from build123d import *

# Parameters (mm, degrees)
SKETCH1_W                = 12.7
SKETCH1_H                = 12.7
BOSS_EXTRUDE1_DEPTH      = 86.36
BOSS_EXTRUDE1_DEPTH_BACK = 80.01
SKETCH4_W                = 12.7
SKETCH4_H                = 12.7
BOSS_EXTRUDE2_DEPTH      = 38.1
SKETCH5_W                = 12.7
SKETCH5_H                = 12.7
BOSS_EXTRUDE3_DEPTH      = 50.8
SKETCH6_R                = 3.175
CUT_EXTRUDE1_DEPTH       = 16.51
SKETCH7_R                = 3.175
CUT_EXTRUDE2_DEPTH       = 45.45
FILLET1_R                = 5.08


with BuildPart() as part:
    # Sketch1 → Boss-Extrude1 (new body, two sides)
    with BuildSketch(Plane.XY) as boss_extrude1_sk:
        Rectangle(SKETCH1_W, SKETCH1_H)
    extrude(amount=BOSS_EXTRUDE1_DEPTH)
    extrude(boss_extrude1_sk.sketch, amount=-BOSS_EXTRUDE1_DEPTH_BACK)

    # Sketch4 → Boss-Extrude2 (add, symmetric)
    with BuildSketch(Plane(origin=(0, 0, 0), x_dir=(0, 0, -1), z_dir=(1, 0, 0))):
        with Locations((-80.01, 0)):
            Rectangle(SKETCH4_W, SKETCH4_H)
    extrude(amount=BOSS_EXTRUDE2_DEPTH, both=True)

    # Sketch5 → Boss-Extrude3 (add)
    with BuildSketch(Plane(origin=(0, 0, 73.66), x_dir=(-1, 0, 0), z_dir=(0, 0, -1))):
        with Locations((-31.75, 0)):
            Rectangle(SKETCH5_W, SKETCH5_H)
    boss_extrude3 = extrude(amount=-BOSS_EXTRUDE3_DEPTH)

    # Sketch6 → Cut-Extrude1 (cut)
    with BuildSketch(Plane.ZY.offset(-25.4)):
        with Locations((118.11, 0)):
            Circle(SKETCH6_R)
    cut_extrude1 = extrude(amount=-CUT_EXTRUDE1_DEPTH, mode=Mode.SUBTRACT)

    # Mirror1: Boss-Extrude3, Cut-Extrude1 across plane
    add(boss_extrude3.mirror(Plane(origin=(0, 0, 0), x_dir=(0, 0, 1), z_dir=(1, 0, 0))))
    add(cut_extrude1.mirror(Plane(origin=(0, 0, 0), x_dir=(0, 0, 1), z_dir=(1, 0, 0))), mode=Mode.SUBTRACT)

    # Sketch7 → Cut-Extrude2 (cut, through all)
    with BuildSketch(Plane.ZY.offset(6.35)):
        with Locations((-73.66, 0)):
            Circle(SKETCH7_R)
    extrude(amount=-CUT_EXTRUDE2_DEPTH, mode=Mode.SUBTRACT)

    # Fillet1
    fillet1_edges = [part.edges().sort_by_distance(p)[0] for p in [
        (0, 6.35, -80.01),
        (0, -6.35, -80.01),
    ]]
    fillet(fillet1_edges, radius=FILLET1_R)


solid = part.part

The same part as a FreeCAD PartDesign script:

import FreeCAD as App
import Part
import Sketcher
from FreeCAD import Vector
Q = App.Units.Quantity


def edges_at(feature, points):
    """Names of the edges that pass closest to the given points."""
    edges = feature.Shape.Edges
    near = lambda p: min(range(len(edges)), key=lambda i: edges[i].distToShape(Part.Vertex(*p))[0])
    return sorted({f"Edge{near(p) + 1}" for p in points})

doc = App.newDocument("Part")
params = doc.addObject("Spreadsheet::Sheet", "Params")
for row, (alias, value) in enumerate([
    ("sketch1_width", "0.5 in"),
    ("pad1_length", "3.4 in"),
    ("pad1_length2", "3.15 in"),
    ("sketch2_width", "0.5 in"),
    ("pad2_length", "3 in"),
    ("sketch3_width", "0.5 in"),
    ("pad3_length", "2 in"),
    ("sketch4_diameter", "0.25 in"),
    ("pocket1_length", "0.65 in"),
    ("sketch5_diameter", "0.25 in"),
    ("fillet_radius", "0.2 in"),
], start=1):
    params.set(f"A{row}", alias)
    params.set(f"B{row}", "=" + value)
    params.setAlias(f"B{row}", alias)

body = doc.addObject("PartDesign::Body", "Body")

# Sketch on XY plane
sketch1 = doc.addObject("Sketcher::SketchObject", "Sketch")
body.addObject(sketch1)
sketch1.AttachmentSupport = (doc.XY_Plane, [""])
sketch1.MapMode = "FlatFace"
sketch1.addGeometry([
    Part.LineSegment(Vector(-6, 6, 0), Vector(-6, -6, 0)),
    Part.LineSegment(Vector(-6, -6, 0), Vector(6, -6, 0)),
    Part.LineSegment(Vector(6, -6, 0), Vector(6, 6, 0)),
    Part.LineSegment(Vector(6, 6, 0), Vector(-6, 6, 0)),
], False)
sketch1.addConstraint([
    Sketcher.Constraint("Coincident", 0, 2, 1, 1),
    Sketcher.Constraint("Coincident", 1, 2, 2, 1),
    Sketcher.Constraint("Coincident", 2, 2, 3, 1),
    Sketcher.Constraint("Coincident", 3, 2, 0, 1),
    Sketcher.Constraint("Vertical", 0),
    Sketcher.Constraint("Horizontal", 1),
    Sketcher.Constraint("Vertical", 2),
    Sketcher.Constraint("Horizontal", 3),
    Sketcher.Constraint("Symmetric", 0, 2, 2, 2, -1, 1),
    Sketcher.Constraint("Equal", 3, 0),
    Sketcher.Constraint("DistanceX", 1, 1, 1, 2, Q("0.5 in")),
])
sketch1.setExpression("Constraints[10]", "Params.sketch1_width")
pad1 = doc.addObject("PartDesign::Pad", "Pad")
body.addObject(pad1)
pad1.Profile = sketch1
pad1.Type = "TwoLengths"
pad1.setExpression("Length", "Params.pad1_length")
pad1.setExpression("Length2", "Params.pad1_length2")

# Sketch on YZ plane
sketch2 = doc.addObject("Sketcher::SketchObject", "Sketch001")
body.addObject(sketch2)
sketch2.AttachmentSupport = (doc.YZ_Plane, [""])
sketch2.MapMode = "FlatFace"
sketch2.addGeometry([
    Part.LineSegment(Vector(6, 86, 0), Vector(-6, 86, 0)),
    Part.LineSegment(Vector(-6, 86, 0), Vector(-6, 74, 0)),
    Part.LineSegment(Vector(-6, 74, 0), Vector(6, 74, 0)),
    Part.LineSegment(Vector(6, 74, 0), Vector(6, 86, 0)),
], False)
sketch2.addConstraint([
    Sketcher.Constraint("Coincident", 0, 2, 1, 1),
    Sketcher.Constraint("Coincident", 1, 2, 2, 1),
    Sketcher.Constraint("Coincident", 2, 2, 3, 1),
    Sketcher.Constraint("Coincident", 3, 2, 0, 1),
    Sketcher.Constraint("Horizontal", 0),
    Sketcher.Constraint("Vertical", 1),
    Sketcher.Constraint("Horizontal", 2),
    Sketcher.Constraint("Vertical", 3),
    Sketcher.Constraint("Equal", 2, 1),
    Sketcher.Constraint("DistanceX", 0, 2, 0, 1, Q("0.5 in")),
    Sketcher.Constraint("DistanceY", -1, 1, 0, 2, Q("3.4 in")),
    Sketcher.Constraint("DistanceX", 0, 2, -1, 1, Q("0.25 in")),
])
sketch2.setExpression("Constraints[9]", "Params.sketch2_width")
pad2 = doc.addObject("PartDesign::Pad", "Pad001")
body.addObject(pad2)
pad2.Profile = sketch2
pad2.setExpression("Length", "Params.pad2_length")
pad2.Midplane = True

# Sketch on XY plane
sketch3 = doc.addObject("Sketcher::SketchObject", "Sketch002")
body.addObject(sketch3)
sketch3.AttachmentSupport = (doc.XY_Plane, [""])
sketch3.MapMode = "FlatFace"
sketch3.AttachmentOffset = App.Placement(Vector(0, 0, 2.9 * 25.4), App.Rotation())
sketch3.addGeometry([
    Part.LineSegment(Vector(38, 6, 0), Vector(38, -6, 0)),
    Part.LineSegment(Vector(38, -6, 0), Vector(25, -6, 0)),
    Part.LineSegment(Vector(25, -6, 0), Vector(25, 6, 0)),
    Part.LineSegment(Vector(25, 6, 0), Vector(38, 6, 0)),
], False)
sketch3.addConstraint([
    Sketcher.Constraint("Coincident", 0, 2, 1, 1),
    Sketcher.Constraint("Coincident", 1, 2, 2, 1),
    Sketcher.Constraint("Coincident", 2, 2, 3, 1),
    Sketcher.Constraint("Coincident", 3, 2, 0, 1),
    Sketcher.Constraint("Vertical", 0),
    Sketcher.Constraint("Horizontal", 1),
    Sketcher.Constraint("Vertical", 2),
    Sketcher.Constraint("Horizontal", 3),
    Sketcher.Constraint("Equal", 3, 0),
    Sketcher.Constraint("DistanceX", 1, 2, 1, 1, Q("0.5 in")),
    Sketcher.Constraint("DistanceX", -1, 1, 1, 2, Q("1 in")),
    Sketcher.Constraint("DistanceY", 0, 2, -1, 1, Q("0.25 in")),
])
sketch3.setExpression("Constraints[9]", "Params.sketch3_width")
pad3 = doc.addObject("PartDesign::Pad", "Pad002")
body.addObject(pad3)
pad3.Profile = sketch3
pad3.setExpression("Length", "Params.pad3_length")

# Sketch on YZ plane
sketch4 = doc.addObject("Sketcher::SketchObject", "Sketch003")
body.addObject(sketch4)
sketch4.AttachmentSupport = (doc.YZ_Plane, [""])
sketch4.MapMode = "FlatFace"
sketch4.AttachmentOffset = App.Placement(Vector(0, 0, 1 * 25.4), App.Rotation())
sketch4.addGeometry(Part.Circle(Vector(0, 118.1, 0), Vector(0, 0, 1), 3.2), False)
sketch4.addConstraint([
    Sketcher.Constraint("PointOnObject", 0, 3, -2),
    Sketcher.Constraint("Diameter", 0, Q("0.25 in")),
    Sketcher.Constraint("DistanceY", -1, 1, 0, 3, Q("4.65 in")),
])
sketch4.setExpression("Constraints[1]", "Params.sketch4_diameter")
pocket1 = doc.addObject("PartDesign::Pocket", "Pocket")
body.addObject(pocket1)
pocket1.Profile = sketch4
pocket1.setExpression("Length", "Params.pocket1_length")
pocket1.Reversed = True
doc.recompute()

mirrored = doc.addObject("PartDesign::Mirrored", "Mirrored")
body.addObject(mirrored)
mirrored.Originals = [pad3, pocket1]
mirrored.MirrorPlane = (doc.YZ_Plane, [""])
body.Tip = mirrored

# Sketch on YZ plane
sketch5 = doc.addObject("Sketcher::SketchObject", "Sketch004")
body.addObject(sketch5)
sketch5.AttachmentSupport = (doc.YZ_Plane, [""])
sketch5.MapMode = "FlatFace"
sketch5.AttachmentOffset = App.Placement(Vector(0, 0, -0.25 * 25.4), App.Rotation())
sketch5.addGeometry(Part.Circle(Vector(0, -73.7, 0), Vector(0, 0, 1), 3.2), False)
sketch5.addConstraint([
    Sketcher.Constraint("PointOnObject", 0, 3, -2),
    Sketcher.Constraint("Diameter", 0, Q("0.25 in")),
    Sketcher.Constraint("DistanceY", 0, 3, -1, 1, Q("2.9 in")),
])
sketch5.setExpression("Constraints[1]", "Params.sketch5_diameter")
pocket2 = doc.addObject("PartDesign::Pocket", "Pocket001")
body.addObject(pocket2)
pocket2.Profile = sketch5
pocket2.Type = "ThroughAll"
pocket2.Reversed = True
doc.recompute()

fillet = doc.addObject("PartDesign::Fillet", "Fillet")
body.addObject(fillet)
fillet.Base = (pocket2, edges_at(pocket2, [(0, 6.35, -80.01), (0, -6.35, -80.01)]))
fillet.setExpression("Radius", "Params.fillet_radius")

doc.recompute()
